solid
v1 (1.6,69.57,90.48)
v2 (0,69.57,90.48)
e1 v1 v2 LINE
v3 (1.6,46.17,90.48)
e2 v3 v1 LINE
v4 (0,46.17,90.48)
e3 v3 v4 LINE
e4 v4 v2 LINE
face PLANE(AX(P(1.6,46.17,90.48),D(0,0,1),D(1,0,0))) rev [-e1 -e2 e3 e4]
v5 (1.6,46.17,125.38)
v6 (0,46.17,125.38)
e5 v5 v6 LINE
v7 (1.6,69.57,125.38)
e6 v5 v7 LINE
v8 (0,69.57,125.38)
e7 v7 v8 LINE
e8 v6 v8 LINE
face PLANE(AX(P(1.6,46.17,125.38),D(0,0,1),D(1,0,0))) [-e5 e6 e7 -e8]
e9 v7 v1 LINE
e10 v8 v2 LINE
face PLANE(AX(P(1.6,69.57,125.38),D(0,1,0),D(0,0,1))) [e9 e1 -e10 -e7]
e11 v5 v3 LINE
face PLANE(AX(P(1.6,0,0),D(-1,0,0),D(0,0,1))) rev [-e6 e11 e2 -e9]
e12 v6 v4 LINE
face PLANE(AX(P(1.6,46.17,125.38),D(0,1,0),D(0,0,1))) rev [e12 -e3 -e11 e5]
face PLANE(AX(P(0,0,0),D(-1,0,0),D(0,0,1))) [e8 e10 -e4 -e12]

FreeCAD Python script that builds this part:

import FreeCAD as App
import Part
import Sketcher


def add_polygon(sketch, points):
    """Adds a closed chain of lines whose ends are joined by coincident constraints."""
    first, n = sketch.GeometryCount, len(points)
    for a, b in zip(points, points[1:] + points[:1]):
        sketch.addGeometry(Part.LineSegment(App.Vector(*a, 0), App.Vector(*b, 0)), False)
    for i in range(n):
        sketch.addConstraint(Sketcher.Constraint("Coincident", first + i, 2, first + (i + 1) % n, 1))

doc = App.newDocument("Part")
params = doc.addObject("Spreadsheet::Sheet", "Params")
for row, (alias, value) in enumerate([
    ("sketch1_width", "23.4 mm"),
    ("sketch1_height", "34.9 mm"),
    ("pad1_length", "1.6 mm"),
], start=1):
    params.set(f"A{row}", alias)
    params.set(f"B{row}", "=" + value)
    params.setAlias(f"B{row}", alias)

body = doc.addObject("PartDesign::Body", "Body")

sketch1 = doc.addObject("Sketcher::SketchObject", "Sketch")
body.addObject(sketch1)
sketch1.AttachmentSupport = (doc.YZ_Plane, [""])
sketch1.MapMode = "FlatFace"
add_polygon(sketch1, [(46, 125), (46, 90), (70, 90), (70, 125)])
sketch1.addConstraint([
    Sketcher.Constraint("Vertical", 0),
    Sketcher.Constraint("Horizontal", 1),
    Sketcher.Constraint("Vertical", 2),
    Sketcher.Constraint("Horizontal", 3),
    Sketcher.Constraint("DistanceX", 1, 1, 1, 2, 23.4),
    Sketcher.Constraint("DistanceY", 0, 2, 0, 1, 34.9),
    Sketcher.Constraint("DistanceX", -1, 1, 0, 2, 46.17),
    Sketcher.Constraint("DistanceY", -1, 1, 0, 2, 90.48),
])
sketch1.setExpression("Constraints[8]", "Params.sketch1_width")
sketch1.setExpression("Constraints[9]", "Params.sketch1_height")
pad1 = doc.addObject("PartDesign::Pad", "Pad")
body.addObject(pad1)
pad1.Profile = sketch1
pad1.setExpression("Length", "Params.pad1_length")

doc.recompute()
